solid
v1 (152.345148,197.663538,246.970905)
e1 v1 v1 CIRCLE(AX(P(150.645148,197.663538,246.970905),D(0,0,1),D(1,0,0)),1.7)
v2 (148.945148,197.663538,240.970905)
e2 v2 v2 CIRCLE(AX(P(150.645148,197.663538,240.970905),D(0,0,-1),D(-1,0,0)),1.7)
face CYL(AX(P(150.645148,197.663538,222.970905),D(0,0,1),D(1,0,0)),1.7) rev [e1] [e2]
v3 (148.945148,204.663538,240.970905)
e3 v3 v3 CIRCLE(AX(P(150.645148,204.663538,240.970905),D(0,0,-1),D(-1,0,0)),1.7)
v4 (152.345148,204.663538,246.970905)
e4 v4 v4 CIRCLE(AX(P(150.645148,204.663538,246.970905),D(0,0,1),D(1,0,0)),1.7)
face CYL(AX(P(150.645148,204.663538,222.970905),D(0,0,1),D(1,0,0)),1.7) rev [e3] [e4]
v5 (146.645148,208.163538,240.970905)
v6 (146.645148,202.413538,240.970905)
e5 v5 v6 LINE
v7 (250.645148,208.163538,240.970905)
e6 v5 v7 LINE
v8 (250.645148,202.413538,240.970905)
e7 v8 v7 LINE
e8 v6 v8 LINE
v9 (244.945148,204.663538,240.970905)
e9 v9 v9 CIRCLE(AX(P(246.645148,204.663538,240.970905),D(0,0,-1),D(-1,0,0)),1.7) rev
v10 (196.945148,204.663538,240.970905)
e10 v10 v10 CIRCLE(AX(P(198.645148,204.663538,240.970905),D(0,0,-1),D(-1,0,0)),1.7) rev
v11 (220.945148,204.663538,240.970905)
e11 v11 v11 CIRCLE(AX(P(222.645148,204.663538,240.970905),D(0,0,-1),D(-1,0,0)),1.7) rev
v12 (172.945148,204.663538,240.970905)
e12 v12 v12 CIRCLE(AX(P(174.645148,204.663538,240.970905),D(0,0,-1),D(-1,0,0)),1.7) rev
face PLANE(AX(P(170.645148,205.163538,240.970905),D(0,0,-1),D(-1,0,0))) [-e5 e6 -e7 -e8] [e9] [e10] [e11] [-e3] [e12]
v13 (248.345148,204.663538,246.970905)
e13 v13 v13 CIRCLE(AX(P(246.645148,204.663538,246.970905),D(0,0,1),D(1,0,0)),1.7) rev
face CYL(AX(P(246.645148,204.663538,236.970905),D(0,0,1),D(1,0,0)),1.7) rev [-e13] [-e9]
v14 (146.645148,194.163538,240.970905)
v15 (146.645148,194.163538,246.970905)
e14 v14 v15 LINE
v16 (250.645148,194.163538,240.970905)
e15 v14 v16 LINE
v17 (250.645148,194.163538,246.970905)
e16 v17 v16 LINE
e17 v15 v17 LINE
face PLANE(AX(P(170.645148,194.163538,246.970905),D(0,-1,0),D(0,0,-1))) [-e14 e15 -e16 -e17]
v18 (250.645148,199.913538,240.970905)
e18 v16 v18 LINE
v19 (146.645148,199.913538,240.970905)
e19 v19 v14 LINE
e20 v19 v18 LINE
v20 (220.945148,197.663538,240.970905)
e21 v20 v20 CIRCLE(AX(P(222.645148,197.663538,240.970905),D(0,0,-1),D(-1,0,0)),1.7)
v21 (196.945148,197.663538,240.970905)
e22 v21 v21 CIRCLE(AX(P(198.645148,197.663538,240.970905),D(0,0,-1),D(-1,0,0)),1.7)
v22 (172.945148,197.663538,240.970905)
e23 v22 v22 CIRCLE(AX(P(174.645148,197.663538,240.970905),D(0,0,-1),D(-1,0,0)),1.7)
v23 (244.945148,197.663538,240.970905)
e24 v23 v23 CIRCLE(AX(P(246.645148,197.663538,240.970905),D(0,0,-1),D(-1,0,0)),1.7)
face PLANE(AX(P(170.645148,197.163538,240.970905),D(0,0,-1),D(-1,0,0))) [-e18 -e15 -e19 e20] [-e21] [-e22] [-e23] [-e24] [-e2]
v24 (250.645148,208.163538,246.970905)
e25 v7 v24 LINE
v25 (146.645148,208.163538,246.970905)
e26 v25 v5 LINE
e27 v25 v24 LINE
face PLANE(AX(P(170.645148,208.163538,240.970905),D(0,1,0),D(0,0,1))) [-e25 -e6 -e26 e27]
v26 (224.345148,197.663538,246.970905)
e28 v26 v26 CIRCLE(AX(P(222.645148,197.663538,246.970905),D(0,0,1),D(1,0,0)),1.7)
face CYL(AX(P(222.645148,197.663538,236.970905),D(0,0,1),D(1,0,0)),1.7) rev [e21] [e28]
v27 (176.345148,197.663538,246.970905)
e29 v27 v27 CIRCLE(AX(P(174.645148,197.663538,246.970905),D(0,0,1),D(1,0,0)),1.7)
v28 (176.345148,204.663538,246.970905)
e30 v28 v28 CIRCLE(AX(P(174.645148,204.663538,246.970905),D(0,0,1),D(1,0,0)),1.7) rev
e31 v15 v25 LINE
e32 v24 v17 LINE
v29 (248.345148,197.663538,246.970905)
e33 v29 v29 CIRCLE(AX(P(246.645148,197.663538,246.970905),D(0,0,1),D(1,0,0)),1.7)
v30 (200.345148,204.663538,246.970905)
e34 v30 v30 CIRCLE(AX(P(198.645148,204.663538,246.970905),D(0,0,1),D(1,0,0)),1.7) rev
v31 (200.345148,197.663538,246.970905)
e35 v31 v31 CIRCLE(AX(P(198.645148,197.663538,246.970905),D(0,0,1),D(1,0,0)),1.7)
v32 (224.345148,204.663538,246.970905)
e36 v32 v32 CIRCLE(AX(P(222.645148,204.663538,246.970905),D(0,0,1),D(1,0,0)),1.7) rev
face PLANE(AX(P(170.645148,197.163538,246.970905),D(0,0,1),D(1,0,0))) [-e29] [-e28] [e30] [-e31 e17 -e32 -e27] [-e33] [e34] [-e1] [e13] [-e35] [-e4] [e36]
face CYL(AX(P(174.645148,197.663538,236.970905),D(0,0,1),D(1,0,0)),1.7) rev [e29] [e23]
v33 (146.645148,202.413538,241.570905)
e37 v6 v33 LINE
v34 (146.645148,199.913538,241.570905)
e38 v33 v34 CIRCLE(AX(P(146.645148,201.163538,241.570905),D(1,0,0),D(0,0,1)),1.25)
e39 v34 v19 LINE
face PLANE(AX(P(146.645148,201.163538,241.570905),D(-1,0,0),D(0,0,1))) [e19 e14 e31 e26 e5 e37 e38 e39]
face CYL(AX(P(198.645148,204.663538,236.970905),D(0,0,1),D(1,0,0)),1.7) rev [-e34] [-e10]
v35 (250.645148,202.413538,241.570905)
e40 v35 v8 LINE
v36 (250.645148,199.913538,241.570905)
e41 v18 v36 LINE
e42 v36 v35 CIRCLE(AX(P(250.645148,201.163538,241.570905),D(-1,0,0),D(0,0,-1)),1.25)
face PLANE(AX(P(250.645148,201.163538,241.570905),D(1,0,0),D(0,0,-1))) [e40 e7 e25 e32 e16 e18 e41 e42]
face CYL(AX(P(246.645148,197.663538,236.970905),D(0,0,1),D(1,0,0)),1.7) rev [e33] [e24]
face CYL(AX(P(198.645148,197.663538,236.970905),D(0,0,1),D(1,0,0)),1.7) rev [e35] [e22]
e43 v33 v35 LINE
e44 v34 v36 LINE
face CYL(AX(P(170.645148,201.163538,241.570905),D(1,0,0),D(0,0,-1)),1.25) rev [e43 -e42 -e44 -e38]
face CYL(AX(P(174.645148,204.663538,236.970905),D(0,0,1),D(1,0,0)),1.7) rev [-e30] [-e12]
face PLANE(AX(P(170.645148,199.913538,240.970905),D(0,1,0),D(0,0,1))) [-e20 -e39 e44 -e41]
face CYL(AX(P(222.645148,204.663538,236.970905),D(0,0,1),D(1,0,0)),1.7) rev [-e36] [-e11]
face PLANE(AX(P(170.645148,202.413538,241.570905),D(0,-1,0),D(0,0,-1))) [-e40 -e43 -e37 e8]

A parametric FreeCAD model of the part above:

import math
import FreeCAD as App
import Part
import Sketcher
Q = App.Units.Quantity

doc = App.newDocument("Part")
params = doc.addObject("Spreadsheet::Sheet", "Params")
for row, (alias, value) in enumerate([
    ("sketch1_width", "14 mm"),
    ("sketch1_height", "6 mm"),
    ("sketch1_radius", "1.25 mm"),
    ("sketch1_height2", "0.6 mm"),
    ("pad1_length", "60 mm"),
    ("pad1_length2", "20 mm"),
    ("sketch2_diameter", "3.4 mm"),
    ("pocket1_length", "10 mm"),
    ("sketch3_width", "14 mm"),
    ("sketch3_height", "6 mm"),
    ("sketch3_radius", "1.25 mm"),
    ("sketch3_height2", "0.6 mm"),
    ("pad2_length", "24 mm"),
    ("sketch4_diameter", "3.4 mm"),
    ("pocket2_length", "24 mm"),
], start=1):
    params.set(f"A{row}", alias)
    params.set(f"B{row}", "=" + value)
    params.setAlias(f"B{row}", alias)

body = doc.addObject("PartDesign::Body", "Body")

# Sketch on YZ plane
sketch1 = body.newObject("Sketcher::SketchObject", "Sketch")
sketch1.AttachmentSupport = (doc.getObject("YZ_Plane"), [""])
sketch1.MapMode = "FlatFace"
sketch1.AttachmentOffset = App.Placement(App.Vector(0, 0, 190.645148), App.Rotation())
sketch1.addGeometry(Part.LineSegment(App.Vector(208.163538, 246.970905, 0), App.Vector(194.163538, 246.970905, 0)), False)
sketch1.addGeometry(Part.LineSegment(App.Vector(194.163538, 246.970905, 0), App.Vector(194.163538, 240.970905, 0)), False)
sketch1.addGeometry(Part.LineSegment(App.Vector(194.163538, 240.970905, 0), App.Vector(199.913538, 240.970905, 0)), False)
sketch1.addGeometry(Part.LineSegment(App.Vector(199.913538, 240.970905, 0), App.Vector(199.913538, 241.570905, 0)), False)
sketch1.addGeometry(Part.ArcOfCircle(Part.Circle(App.Vector(201.163538, 241.570905, 0), App.Vector(0, 0, 1), 1.25), math.radians(0), math.radians(180)), False)
sketch1.addGeometry(Part.LineSegment(App.Vector(202.413538, 241.570905, 0), App.Vector(202.413538, 240.970905, 0)), False)
sketch1.addGeometry(Part.LineSegment(App.Vector(202.413538, 240.970905, 0), App.Vector(208.163538, 240.970905, 0)), False)
sketch1.addGeometry(Part.LineSegment(App.Vector(208.163538, 240.970905, 0), App.Vector(208.163538, 246.970905, 0)), False)
sketch1.addConstraint(Sketcher.Constraint("Coincident", 0, 2, 1, 1))
sketch1.addConstraint(Sketcher.Constraint("Coincident", 1, 2, 2, 1))
sketch1.addConstraint(Sketcher.Constraint("Coincident", 2, 2, 3, 1))
sketch1.addConstraint(Sketcher.Constraint("Tangent", 3, 2, 4, 2))
sketch1.addConstraint(Sketcher.Constraint("Tangent", 4, 1, 5, 1))
sketch1.addConstraint(Sketcher.Constraint("Coincident", 5, 2, 6, 1))
sketch1.addConstraint(Sketcher.Constraint("Coincident", 6, 2, 7, 1))
sketch1.addConstraint(Sketcher.Constraint("Coincident", 7, 2, 0, 1))
sketch1.addConstraint(Sketcher.Constraint("Horizontal", 0))
sketch1.addConstraint(Sketcher.Constraint("Vertical", 1))
sketch1.addConstraint(Sketcher.Constraint("Horizontal", 2))
sketch1.addConstraint(Sketcher.Constraint("Vertical", 3))
sketch1.addConstraint(Sketcher.Constraint("Vertical", 5))
sketch1.addConstraint(Sketcher.Constraint("Horizontal", 6))
sketch1.addConstraint(Sketcher.Constraint("Vertical", 7))
sketch1.addConstraint(Sketcher.Constraint("Horizontal", 2, 2, 5, 2))
sketch1.addConstraint(Sketcher.Constraint("Equal", 2, 6))
sketch1.addConstraint(Sketcher.Constraint("DistanceX", 0, 2, 0, 1, Q("14 mm")))
sketch1.addConstraint(Sketcher.Constraint("DistanceY", 1, 2, 1, 1, Q("6 mm")))
sketch1.addConstraint(Sketcher.Constraint("Radius", 4, Q("1.25 mm")))
sketch1.addConstraint(Sketcher.Constraint("DistanceY", 3, 1, 3, 2, Q("0.6 mm")))
sketch1.addConstraint(Sketcher.Constraint("DistanceX", -1, 1, 4, 3, Q("201.163538 mm")))
sketch1.addConstraint(Sketcher.Constraint("DistanceY", -1, 1, 4, 3, Q("241.570905 mm")))
sketch1.setExpression("Constraints[17]", "Params.sketch1_width")
sketch1.setExpression("Constraints[18]", "Params.sketch1_height")
sketch1.setExpression("Constraints[19]", "Params.sketch1_radius")
sketch1.setExpression("Constraints[20]", "Params.sketch1_height2")
pad1 = body.newObject("PartDesign::Pad", "Pad")
pad1.Profile = sketch1
pad1.Type = "TwoLengths"
pad1.setExpression("Length", "Params.pad1_length")
pad1.setExpression("Length2", "Params.pad1_length2")

# Sketch on XY plane
sketch2 = body.newObject("Sketcher::SketchObject", "Sketch001")
sketch2.AttachmentSupport = (doc.getObject("XY_Plane"), [""])
sketch2.MapMode = "FlatFace"
sketch2.AttachmentOffset = App.Placement(App.Vector(0, 0, 246.970905), App.Rotation())
sketch2.addGeometry(Part.Circle(App.Vector(246.645148, 197.663538, 0), App.Vector(0, 0, 1), 1.7), False)
sketch2.addGeometry(Part.Circle(App.Vector(198.645148, 197.663538, 0), App.Vector(0, 0, 1), 1.7), False)
sketch2.addGeometry(Part.Circle(App.Vector(174.645148, 197.663538, 0), App.Vector(0, 0, 1), 1.7), False)
sketch2.addGeometry(Part.Circle(App.Vector(222.645148, 197.663538, 0), App.Vector(0, 0, 1), 1.7), False)
sketch2.addGeometry(Part.Circle(App.Vector(174.645148, 204.663538, 0), App.Vector(0, 0, 1), 1.7), False)
sketch2.addGeometry(Part.Circle(App.Vector(198.645148, 204.663538, 0), App.Vector(0, 0, 1), 1.7), False)
sketch2.addGeometry(Part.Circle(App.Vector(222.645148, 204.663538, 0), App.Vector(0, 0, 1), 1.7), False)
sketch2.addGeometry(Part.Circle(App.Vector(246.645148, 204.663538, 0), App.Vector(0, 0, 1), 1.7), False)
sketch2.addConstraint(Sketcher.Constraint("Equal", 0, 1))
sketch2.addConstraint(Sketcher.Constraint("Equal", 1, 2))
sketch2.addConstraint(Sketcher.Constraint("Equal", 2, 3))
sketch2.addConstraint(Sketcher.Constraint("Equal", 3, 4))
sketch2.addConstraint(Sketcher.Constraint("Equal", 4, 5))
sketch2.addConstraint(Sketcher.Constraint("Equal", 5, 6))
sketch2.addConstraint(Sketcher.Constraint("Equal", 6, 7))
sketch2.addConstraint(Sketcher.Constraint("Horizontal", 0, 3, 1, 3))
sketch2.addConstraint(Sketcher.Constraint("Horizontal", 1, 3, 2, 3))
sketch2.addConstraint(Sketcher.Constraint("Horizontal", 2, 3, 3, 3))
sketch2.addConstraint(Sketcher.Constraint("Horizontal", 4, 3, 5, 3))
sketch2.addConstraint(Sketcher.Constraint("Horizontal", 5, 3, 6, 3))
sketch2.addConstraint(Sketcher.Constraint("Horizontal", 6, 3, 7, 3))
sketch2.addConstraint(Sketcher.Constraint("Vertical", 2, 3, 4, 3))
sketch2.addConstraint(Sketcher.Constraint("Vertical", 1, 3, 5, 3))
sketch2.addConstraint(Sketcher.Constraint("Vertical", 3, 3, 6, 3))
sketch2.addConstraint(Sketcher.Constraint("Vertical", 0, 3, 7, 3))
sketch2.addConstraint(Sketcher.Constraint("Diameter", 0, Q("3.4 mm")))
sketch2.addConstraint(Sketcher.Constraint("DistanceX", 1, 3, 0, 3, Q("48 mm")))
sketch2.addConstraint(Sketcher.Constraint("DistanceX", 2, 3, 1, 3, Q("24 mm")))
sketch2.addConstraint(Sketcher.Constraint("DistanceX", 3, 3, 0, 3, Q("24 mm")))
sketch2.addConstraint(Sketcher.Constraint("DistanceY", 2, 3, 4, 3, Q("7 mm")))
sketch2.addConstraint(Sketcher.Constraint("DistanceX", -1, 1, 0, 3, Q("246.645148 mm")))
sketch2.addConstraint(Sketcher.Constraint("DistanceY", -1, 1, 0, 3, Q("197.663538 mm")))
sketch2.setExpression("Constraints[17]", "Params.sketch2_diameter")
pocket1 = body.newObject("PartDesign::Pocket", "Pocket")
pocket1.Profile = sketch2
pocket1.setExpression("Length", "Params.pocket1_length")

# Sketch on YZ plane
sketch3 = body.newObject("Sketcher::SketchObject", "Sketch002")
sketch3.AttachmentSupport = (doc.getObject("YZ_Plane"), [""])
sketch3.MapMode = "FlatFace"
sketch3.AttachmentOffset = App.Placement(App.Vector(0, 0, 146.645148), App.Rotation())
sketch3.addGeometry(Part.LineSegment(App.Vector(208.163538, 246.970905, 0), App.Vector(208.163538, 240.970905, 0)), False)
sketch3.addGeometry(Part.LineSegment(App.Vector(208.163538, 240.970905, 0), App.Vector(202.413538, 240.970905, 0)), False)
sketch3.addGeometry(Part.LineSegment(App.Vector(202.413538, 240.970905, 0), App.Vector(202.413538, 241.570905, 0)), False)
sketch3.addGeometry(Part.ArcOfCircle(Part.Circle(App.Vector(201.163538, 241.570905, 0), App.Vector(0, 0, 1), 1.25), math.radians(0), math.radians(180)), False)
sketch3.addGeometry(Part.LineSegment(App.Vector(199.913538, 241.570905, 0), App.Vector(199.913538, 240.970905, 0)), False)
sketch3.addGeometry(Part.LineSegment(App.Vector(199.913538, 240.970905, 0), App.Vector(194.163538, 240.970905, 0)), False)
sketch3.addGeometry(Part.LineSegment(App.Vector(194.163538, 240.970905, 0), App.Vector(194.163538, 246.970905, 0)), False)
sketch3.addGeometry(Part.LineSegment(App.Vector(194.163538, 246.970905, 0), App.Vector(208.163538, 246.970905, 0)), False)
sketch3.addConstraint(Sketcher.Constraint("Coincident", 0, 2, 1, 1))
sketch3.addConstraint(Sketcher.Constraint("Coincident", 1, 2, 2, 1))
sketch3.addConstraint(Sketcher.Constraint("Tangent", 2, 2, 3, 1))
sketch3.addConstraint(Sketcher.Constraint("Tangent", 3, 2, 4, 1))
sketch3.addConstraint(Sketcher.Constraint("Coincident", 4, 2, 5, 1))
sketch3.addConstraint(Sketcher.Constraint("Coincident", 5, 2, 6, 1))
sketch3.addConstraint(Sketcher.Constraint("Coincident", 6, 2, 7, 1))
sketch3.addConstraint(Sketcher.Constraint("Coincident", 7, 2, 0, 1))
sketch3.addConstraint(Sketcher.Constraint("Vertical", 0))
sketch3.addConstraint(Sketcher.Constraint("Horizontal", 1))
sketch3.addConstraint(Sketcher.Constraint("Vertical", 2))
sketch3.addConstraint(Sketcher.Constraint("Vertical", 4))
sketch3.addConstraint(Sketcher.Constraint("Horizontal", 5))
sketch3.addConstraint(Sketcher.Constraint("Vertical", 6))
sketch3.addConstraint(Sketcher.Constraint("Horizontal", 7))
sketch3.addConstraint(Sketcher.Constraint("Horizontal", 1, 2, 4, 2))
sketch3.addConstraint(Sketcher.Constraint("Equal", 1, 5))
sketch3.addConstraint(Sketcher.Constraint("DistanceX", 7, 1, 7, 2, Q("14 mm")))
sketch3.addConstraint(Sketcher.Constraint("DistanceY", 0, 2, 0, 1, Q("6 mm")))
sketch3.addConstraint(Sketcher.Constraint("Radius", 3, Q("1.25 mm")))
sketch3.addConstraint(Sketcher.Constraint("DistanceY", 2, 1, 2, 2, Q("0.6 mm")))
sketch3.addConstraint(Sketcher.Constraint("DistanceX", -1, 1, 3, 3, Q("201.163538 mm")))
sketch3.addConstraint(Sketcher.Constraint("DistanceY", -1, 1, 3, 3, Q("241.570905 mm")))
sketch3.setExpression("Constraints[17]", "Params.sketch3_width")
sketch3.setExpression("Constraints[18]", "Params.sketch3_height")
sketch3.setExpression("Constraints[19]", "Params.sketch3_radius")
sketch3.setExpression("Constraints[20]", "Params.sketch3_height2")
pad2 = body.newObject("PartDesign::Pad", "Pad001")
pad2.Profile = sketch3
pad2.setExpression("Length", "Params.pad2_length")

# Sketch on XY plane
sketch4 = body.newObject("Sketcher::SketchObject", "Sketch003")
sketch4.AttachmentSupport = (doc.getObject("XY_Plane"), [""])
sketch4.MapMode = "FlatFace"
sketch4.AttachmentOffset = App.Placement(App.Vector(0, 0, 246.970905), App.Rotation())
sketch4.addGeometry(Part.Circle(App.Vector(150.645148, 197.663538, 0), App.Vector(0, 0, 1), 1.7), False)
sketch4.addGeometry(Part.Circle(App.Vector(150.645148, 204.663538, 0), App.Vector(0, 0, 1), 1.7), False)
sketch4.addConstraint(Sketcher.Constraint("Equal", 0, 1))
sketch4.addConstraint(Sketcher.Constraint("Vertical", 0, 3, 1, 3))
sketch4.addConstraint(Sketcher.Constraint("Diameter", 0, Q("3.4 mm")))
sketch4.addConstraint(Sketcher.Constraint("DistanceY", 0, 3, 1, 3, Q("7 mm")))
sketch4.addConstraint(Sketcher.Constraint("DistanceX", -1, 1, 0, 3, Q("150.645148 mm")))
sketch4.addConstraint(Sketcher.Constraint("DistanceY", -1, 1, 0, 3, Q("197.663538 mm")))
sketch4.setExpression("Constraints[2]", "Params.sketch4_diameter")
pocket2 = body.newObject("PartDesign::Pocket", "Pocket001")
pocket2.Profile = sketch4
pocket2.setExpression("Length", "Params.pocket2_length")

doc.recompute()
